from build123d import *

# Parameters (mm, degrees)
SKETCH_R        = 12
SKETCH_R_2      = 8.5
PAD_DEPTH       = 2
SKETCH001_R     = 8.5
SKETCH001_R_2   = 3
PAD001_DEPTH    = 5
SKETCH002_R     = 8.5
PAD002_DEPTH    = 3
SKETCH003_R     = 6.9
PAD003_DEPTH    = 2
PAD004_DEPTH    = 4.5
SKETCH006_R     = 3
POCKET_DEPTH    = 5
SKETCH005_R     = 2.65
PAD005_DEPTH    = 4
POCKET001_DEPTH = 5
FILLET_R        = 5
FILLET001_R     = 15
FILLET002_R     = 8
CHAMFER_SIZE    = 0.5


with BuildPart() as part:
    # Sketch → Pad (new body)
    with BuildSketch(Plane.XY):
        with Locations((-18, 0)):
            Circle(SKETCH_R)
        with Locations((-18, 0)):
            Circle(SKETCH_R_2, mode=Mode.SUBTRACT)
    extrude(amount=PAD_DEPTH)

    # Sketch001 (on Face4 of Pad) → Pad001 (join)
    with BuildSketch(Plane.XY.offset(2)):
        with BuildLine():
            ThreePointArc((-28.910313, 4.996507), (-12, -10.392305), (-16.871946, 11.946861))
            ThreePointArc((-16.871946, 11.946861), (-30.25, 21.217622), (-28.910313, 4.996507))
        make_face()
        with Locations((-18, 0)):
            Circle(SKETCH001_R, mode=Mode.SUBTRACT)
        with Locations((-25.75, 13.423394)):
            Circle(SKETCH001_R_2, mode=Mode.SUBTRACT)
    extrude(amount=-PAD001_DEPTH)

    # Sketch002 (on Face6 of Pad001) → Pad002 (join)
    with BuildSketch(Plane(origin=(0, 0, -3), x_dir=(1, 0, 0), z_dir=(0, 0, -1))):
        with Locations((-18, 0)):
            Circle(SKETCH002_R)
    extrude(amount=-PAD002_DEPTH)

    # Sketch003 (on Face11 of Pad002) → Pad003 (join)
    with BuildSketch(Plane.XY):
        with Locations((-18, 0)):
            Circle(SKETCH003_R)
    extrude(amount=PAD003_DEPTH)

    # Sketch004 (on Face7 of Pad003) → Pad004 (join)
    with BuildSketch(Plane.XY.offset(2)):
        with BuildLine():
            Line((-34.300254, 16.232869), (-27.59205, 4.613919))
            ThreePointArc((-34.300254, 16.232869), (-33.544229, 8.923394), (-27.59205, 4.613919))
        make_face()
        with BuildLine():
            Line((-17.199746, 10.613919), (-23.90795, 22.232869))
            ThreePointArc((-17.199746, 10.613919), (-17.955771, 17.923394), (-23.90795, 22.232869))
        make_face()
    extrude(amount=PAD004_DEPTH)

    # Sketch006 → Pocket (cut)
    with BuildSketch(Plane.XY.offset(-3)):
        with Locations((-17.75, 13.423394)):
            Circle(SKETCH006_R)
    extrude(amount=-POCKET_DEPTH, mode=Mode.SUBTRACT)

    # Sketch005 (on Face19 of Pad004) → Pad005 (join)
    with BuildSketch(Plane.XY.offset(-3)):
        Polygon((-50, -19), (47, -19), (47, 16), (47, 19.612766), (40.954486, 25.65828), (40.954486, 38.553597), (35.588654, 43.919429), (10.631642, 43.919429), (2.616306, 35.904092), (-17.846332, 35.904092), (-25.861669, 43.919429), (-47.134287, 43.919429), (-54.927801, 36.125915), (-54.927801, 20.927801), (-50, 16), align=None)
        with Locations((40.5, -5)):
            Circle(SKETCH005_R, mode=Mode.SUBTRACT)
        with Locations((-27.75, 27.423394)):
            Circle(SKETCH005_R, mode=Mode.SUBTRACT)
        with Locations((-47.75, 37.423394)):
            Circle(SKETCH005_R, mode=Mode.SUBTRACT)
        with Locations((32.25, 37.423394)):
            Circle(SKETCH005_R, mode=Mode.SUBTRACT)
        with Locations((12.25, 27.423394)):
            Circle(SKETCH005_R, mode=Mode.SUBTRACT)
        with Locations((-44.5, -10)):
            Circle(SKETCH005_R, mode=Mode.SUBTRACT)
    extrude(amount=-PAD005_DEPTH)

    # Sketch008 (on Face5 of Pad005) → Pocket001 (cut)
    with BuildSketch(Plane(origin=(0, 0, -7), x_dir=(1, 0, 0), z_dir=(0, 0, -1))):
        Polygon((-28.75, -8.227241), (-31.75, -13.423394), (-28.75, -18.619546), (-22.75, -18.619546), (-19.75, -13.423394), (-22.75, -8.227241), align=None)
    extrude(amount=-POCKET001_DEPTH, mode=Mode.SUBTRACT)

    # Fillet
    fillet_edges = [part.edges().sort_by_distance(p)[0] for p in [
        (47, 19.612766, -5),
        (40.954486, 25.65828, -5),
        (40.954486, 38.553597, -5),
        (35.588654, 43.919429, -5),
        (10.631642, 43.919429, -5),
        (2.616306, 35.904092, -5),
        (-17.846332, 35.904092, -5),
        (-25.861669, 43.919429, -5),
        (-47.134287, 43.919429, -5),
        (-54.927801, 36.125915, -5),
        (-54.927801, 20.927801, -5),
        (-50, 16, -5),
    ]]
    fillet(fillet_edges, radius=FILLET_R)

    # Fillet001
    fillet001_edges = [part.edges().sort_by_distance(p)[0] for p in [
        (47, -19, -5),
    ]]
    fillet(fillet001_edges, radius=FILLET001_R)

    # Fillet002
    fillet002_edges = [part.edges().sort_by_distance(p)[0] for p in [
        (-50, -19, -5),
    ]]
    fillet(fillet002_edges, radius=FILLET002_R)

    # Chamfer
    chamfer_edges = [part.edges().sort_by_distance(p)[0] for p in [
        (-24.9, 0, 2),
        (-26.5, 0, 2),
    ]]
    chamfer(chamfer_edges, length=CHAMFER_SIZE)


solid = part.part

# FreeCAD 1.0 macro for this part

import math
import FreeCAD as App
import Part
import Sketcher
Q = App.Units.Quantity


def edges_at(feature, points):
    """Names of the edges that pass closest to the given points."""
    edges = feature.Shape.Edges
    near = lambda p: min(range(len(edges)), key=lambda i: edges[i].distToShape(Part.Vertex(*p))[0])
    return sorted({f"Edge{near(p) + 1}" for p in points})


def add_polygon(sketch, points):
    """Adds a closed chain of lines whose ends are joined by coincident constraints."""
    first, n = sketch.GeometryCount, len(points)
    for a, b in zip(points, points[1:] + points[:1]):
        sketch.addGeometry(Part.LineSegment(App.Vector(*a, 0), App.Vector(*b, 0)), False)
    for i in range(n):
        sketch.addConstraint(Sketcher.Constraint("Coincident", first + i, 2, first + (i + 1) % n, 1))

doc = App.newDocument("Part")
params = doc.addObject("Spreadsheet::Sheet", "Params")
for row, (alias, value) in enumerate([
    ("sketch1_diameter", "24 mm"),
    ("sketch1_diameter2", "17 mm"),
    ("pad1_length", "2 mm"),
    ("sketch2_diameter", "17 mm"),
    ("sketch2_diameter2", "6 mm"),
    ("sketch2_radius", "12 mm"),
    ("sketch2_radius2", "9 mm"),
    ("pad2_length", "5 mm"),
    ("sketch3_diameter", "17 mm"),
    ("pad3_length", "3 mm"),
    ("sketch4_diameter", "13.8 mm"),
    ("pad4_length", "2 mm"),
    ("sketch5_radius", "8.999999 mm"),
    ("pad5_length", "4.5 mm"),
    ("sketch6_diameter", "6 mm"),
    ("pocket1_length", "5 mm"),
    ("sketch7_diameter", "5.3 mm"),
    ("sketch7_width", "97 mm"),
    ("sketch7_height", "35 mm"),
    ("pad6_length", "4 mm"),
    ("sketch8_width", "6 mm"),
    ("sketch8_length", "6 mm"),
    ("pocket2_length", "5 mm"),
    ("fillet_radius", "5 mm"),
    ("fillet2_radius", "15 mm"),
    ("fillet3_radius", "8 mm"),
    ("chamfer_size", "0.5 mm"),
], start=1):
    params.set(f"A{row}", alias)
    params.set(f"B{row}", "=" + value)
    params.setAlias(f"B{row}", alias)

body = doc.addObject("PartDesign::Body", "Body")

# Sketch on XY plane
sketch1 = body.newObject("Sketcher::SketchObject", "Sketch")
sketch1.AttachmentSupport = (doc.getObject("XY_Plane"), [""])
sketch1.MapMode = "FlatFace"
sketch1.addGeometry([
    Part.Circle(App.Vector(-18, 0, 0), App.Vector(0, 0, 1), 12),
    Part.Circle(App.Vector(-18, 0, 0), App.Vector(0, 0, 1), 8),
], False)
sketch1.addConstraint([
    Sketcher.Constraint("Coincident", 1, 3, 0, 3),
    Sketcher.Constraint("PointOnObject", 0, 3, -1),
    Sketcher.Constraint("Diameter", 0, Q("24 mm")),
    Sketcher.Constraint("Diameter", 1, Q("17 mm")),
    Sketcher.Constraint("DistanceX", 0, 3, -1, 1, Q("18 mm")),
])
sketch1.setExpression("Constraints[2]", "Params.sketch1_diameter")
sketch1.setExpression("Constraints[3]", "Params.sketch1_diameter2")
pad1 = body.newObject("PartDesign::Pad", "Pad")
pad1.Profile = sketch1
pad1.setExpression("Length", "Params.pad1_length")

# Sketch on XY plane
sketch2 = body.newObject("Sketcher::SketchObject", "Sketch001")
sketch2.AttachmentSupport = (doc.getObject("XY_Plane"), [""])
sketch2.MapMode = "FlatFace"
sketch2.AttachmentOffset = App.Placement(App.Vector(0, 0, 2), App.Rotation())
sketch2.addGeometry([
    Part.ArcOfCircle(Part.Circle(App.Vector(-18, 0, 0), App.Vector(0, 0, 1), 12), math.radians(155), math.radians(445)),
    Part.ArcOfCircle(Part.Circle(App.Vector(-25.8, 13.4, 0), App.Vector(0, 0, 1), 9), math.radians(-9), math.radians(249)),
    Part.Circle(App.Vector(-18, 0, 0), App.Vector(0, 0, 1), 8.5),
    Part.Circle(App.Vector(-25.8, 13.4, 0), App.Vector(0, 0, 1), 3),
], False)
sketch2.addConstraint([
    Sketcher.Constraint("Coincident", 0, 1, 1, 2),
    Sketcher.Constraint("Coincident", 1, 1, 0, 2),
    Sketcher.Constraint("Coincident", 2, 3, 0, 3),
    Sketcher.Constraint("Coincident", 3, 3, 1, 3),
    Sketcher.Constraint("PointOnObject", 0, 3, -1),
    Sketcher.Constraint("Diameter", 2, Q("17 mm")),
    Sketcher.Constraint("Diameter", 3, Q("6 mm")),
    Sketcher.Constraint("Radius", 0, Q("12 mm")),
    Sketcher.Constraint("Radius", 1, Q("9 mm")),
    Sketcher.Constraint("DistanceX", 0, 3, -1, 1, Q("18.000001 mm")),
    Sketcher.Constraint("DistanceX", 1, 3, -1, 1, Q("25.75 mm")),
    Sketcher.Constraint("DistanceY", -1, 1, 1, 3, Q("13.423394 mm")),
])
sketch2.setExpression("Constraints[5]", "Params.sketch2_diameter")
sketch2.setExpression("Constraints[6]", "Params.sketch2_diameter2")
sketch2.setExpression("Constraints[7]", "Params.sketch2_radius")
sketch2.setExpression("Constraints[8]", "Params.sketch2_radius2")
pad2 = body.newObject("PartDesign::Pad", "Pad001")
pad2.Profile = sketch2
pad2.setExpression("Length", "Params.pad2_length")
pad2.Reversed = True

# Sketch on XY plane
sketch3 = body.newObject("Sketcher::SketchObject", "Sketch002")
sketch3.AttachmentSupport = (doc.getObject("XY_Plane"), [""])
sketch3.MapMode = "FlatFace"
sketch3.AttachmentOffset = App.Placement(App.Vector(0, 0, -3), App.Rotation())
sketch3.addGeometry(Part.Circle(App.Vector(-18, 0, 0), App.Vector(0, 0, 1), 8), False)
sketch3.addConstraint([
    Sketcher.Constraint("PointOnObject", 0, 3, -1),
    Sketcher.Constraint("Diameter", 0, Q("17 mm")),
    Sketcher.Constraint("DistanceX", 0, 3, -1, 1, Q("18 mm")),
])
sketch3.setExpression("Constraints[1]", "Params.sketch3_diameter")
pad3 = body.newObject("PartDesign::Pad", "Pad002")
pad3.Profile = sketch3
pad3.setExpression("Length", "Params.pad3_length")

# Sketch on XY plane
sketch4 = body.newObject("Sketcher::SketchObject", "Sketch003")
sketch4.AttachmentSupport = (doc.getObject("XY_Plane"), [""])
sketch4.MapMode = "FlatFace"
sketch4.addGeometry(Part.Circle(App.Vector(-18, 0, 0), App.Vector(0, 0, 1), 7), False)
sketch4.addConstraint([
    Sketcher.Constraint("PointOnObject", 0, 3, -1),
    Sketcher.Constraint("Diameter", 0, Q("13.8 mm")),
    Sketcher.Constraint("DistanceX", 0, 3, -1, 1, Q("18 mm")),
])
sketch4.setExpression("Constraints[1]", "Params.sketch4_diameter")
pad4 = body.newObject("PartDesign::Pad", "Pad003")
pad4.Profile = sketch4
pad4.setExpression("Length", "Params.pad4_length")

# Sketch on XY plane
sketch5 = body.newObject("Sketcher::SketchObject", "Sketch004")
sketch5.AttachmentSupport = (doc.getObject("XY_Plane"), [""])
sketch5.MapMode = "FlatFace"
sketch5.AttachmentOffset = App.Placement(App.Vector(0, 0, 2), App.Rotation())
sketch5.addGeometry([
    Part.LineSegment(App.Vector(-28, 5, 0), App.Vector(-34, 16, 0)),
    Part.ArcOfCircle(Part.Circle(App.Vector(-26, 13, 0), App.Vector(0, 0, 1), 9), math.radians(162), math.radians(258)),
    Part.LineSegment(App.Vector(-24, 22, 0), App.Vector(-17, 11, 0)),
    Part.ArcOfCircle(Part.Circle(App.Vector(-26, 13, 0), App.Vector(0, 0, 1), 9), math.radians(-18), math.radians(78)),
], False)
sketch5.addConstraint([
    Sketcher.Constraint("Coincident", 0, 1, 1, 2),
    Sketcher.Constraint("Coincident", 1, 1, 0, 2),
    Sketcher.Constraint("Coincident", 2, 1, 3, 2),
    Sketcher.Constraint("Coincident", 3, 1, 2, 2),
    Sketcher.Constraint("Coincident", 3, 3, 1, 3),
    Sketcher.Constraint("Equal", 1, 3),
    Sketcher.Constraint("Parallel", 0, 2),
    Sketcher.Constraint("Equal", 0, 2),
    Sketcher.Constraint("Radius", 1, Q("8.999999 mm")),
    Sketcher.Constraint("Angle", 0, Q("120 deg")),
    Sketcher.Constraint("DistanceY", 1, 1, 2, 1, Q("6 mm")),
    Sketcher.Constraint("DistanceX", 1, 3, -1, 1, Q("25.750001 mm")),
    Sketcher.Constraint("DistanceY", -1, 1, 0, 1, Q("4.613919 mm")),
])
sketch5.setExpression("Constraints[8]", "Params.sketch5_radius")
pad5 = body.newObject("PartDesign::Pad", "Pad004")
pad5.Profile = sketch5
pad5.setExpression("Length", "Params.pad5_length")

# Sketch on XY plane
sketch6 = body.newObject("Sketcher::SketchObject", "Sketch005")
sketch6.AttachmentSupport = (doc.getObject("XY_Plane"), [""])
sketch6.MapMode = "FlatFace"
sketch6.AttachmentOffset = App.Placement(App.Vector(0, 0, -3), App.Rotation())
sketch6.addGeometry(Part.Circle(App.Vector(-17.8, 13.4, 0), App.Vector(0, 0, 1), 3), False)
sketch6.addConstraint([
    Sketcher.Constraint("Diameter", 0, Q("6 mm")),
    Sketcher.Constraint("DistanceX", 0, 3, -1, 1, Q("17.75 mm")),
    Sketcher.Constraint("DistanceY", -1, 1, 0, 3, Q("13.423394 mm")),
])
sketch6.setExpression("Constraints[0]", "Params.sketch6_diameter")
pocket1 = body.newObject("PartDesign::Pocket", "Pocket")
pocket1.Profile = sketch6
pocket1.setExpression("Length", "Params.pocket1_length")

# Sketch on XY plane
sketch7 = body.newObject("Sketcher::SketchObject", "Sketch006")
sketch7.AttachmentSupport = (doc.getObject("XY_Plane"), [""])
sketch7.MapMode = "FlatFace"
sketch7.AttachmentOffset = App.Placement(App.Vector(0, 0, -3), App.Rotation())
add_polygon(sketch7, [(-50, -19), (47, -19), (47, 19.6), (41, 25.7), (41, 38.6), (35.6, 43.9), (10.6, 43.9), (2.6, 35.9), (-17.8, 35.9), (-25.9, 43.9), (-47.1, 43.9), (-54.9, 36.1), (-54.9, 20.9), (-50, 16)])  # lines 0-13
sketch7.addGeometry(Part.Circle(App.Vector(-44.5, -10, 0), App.Vector(0, 0, 1), 2.6), False)  # 14
sketch7.addGeometry(Part.Circle(App.Vector(40.5, -5, 0), App.Vector(0, 0, 1), 2.6), False)  # 15
sketch7.addGeometry(Part.Circle(App.Vector(-27.8, 27.4, 0), App.Vector(0, 0, 1), 2.6), False)  # 16
sketch7.addGeometry(Part.Circle(App.Vector(-47.8, 37.4, 0), App.Vector(0, 0, 1), 2.6), False)  # 17
sketch7.addGeometry(Part.Circle(App.Vector(12.2, 27.4, 0), App.Vector(0, 0, 1), 2.6), False)  # 18
sketch7.addGeometry(Part.Circle(App.Vector(32.2, 37.4, 0), App.Vector(0, 0, 1), 2.6), False)  # 19
sketch7.addConstraint([
    Sketcher.Constraint("Horizontal", 0),
    Sketcher.Constraint("Vertical", 1),
    Sketcher.Constraint("Vertical", 3),
    Sketcher.Constraint("Horizontal", 5),
    Sketcher.Constraint("Horizontal", 7),
    Sketcher.Constraint("Horizontal", 9),
    Sketcher.Constraint("Vertical", 11),
    Sketcher.Constraint("Vertical", 13),
    Sketcher.Constraint("Equal", 14, 15),
    Sketcher.Constraint("Equal", 15, 16),
    Sketcher.Constraint("Equal", 16, 17),
    Sketcher.Constraint("Equal", 17, 18),
    Sketcher.Constraint("Equal", 18, 19),
    Sketcher.Constraint("Parallel", 2, 4),
    Sketcher.Constraint("Perpendicular", 4, 6),
    Sketcher.Constraint("Perpendicular", 6, 8),
    Sketcher.Constraint("Perpendicular", 8, 10),
    Sketcher.Constraint("Perpendicular", 10, 12),
    Sketcher.Constraint("Horizontal", 16, 3, 18, 3),
    Sketcher.Constraint("Horizontal", 17, 3, 19, 3),
    Sketcher.Constraint("Horizontal", 5, 2, 8, 2),
    Sketcher.Constraint("Equal", 6, 8),
    Sketcher.Constraint("Diameter", 14, Q("5.3 mm")),
    Sketcher.Constraint("DistanceX", 0, 1, 0, 2, Q("97 mm")),
    Sketcher.Constraint("DistanceY", 13, 2, 13, 1, Q("35 mm")),
    Sketcher.Constraint("DistanceY", 14, 3, -1, 1, Q("10 mm")),
    Sketcher.Constraint("DistanceY", 15, 3, -1, 1, Q("5 mm")),
    Sketcher.Constraint("DistanceX", -1, 1, 0, 2, Q("47 mm")),
    Sketcher.Constraint("DistanceY", 0, 2, -1, 1, Q("19 mm")),
    Sketcher.Constraint("DistanceX", 14, 3, 15, 3, Q("85 mm")),
    Sketcher.Constraint("DistanceX", 17, 3, 16, 3, Q("20 mm")),
    Sketcher.Constraint("DistanceY", 16, 3, 17, 3, Q("10 mm")),
    Sketcher.Constraint("DistanceX", 16, 3, 18, 3, Q("40 mm")),
    Sketcher.Constraint("DistanceX", 18, 3, 19, 3, Q("20 mm")),
    Sketcher.Constraint("DistanceX", 14, 3, -1, 1, Q("44.5 mm")),
    Sketcher.Constraint("DistanceX", 16, 3, -1, 1, Q("27.75 mm")),
    Sketcher.Constraint("Distance", 8, Q("11.335398 mm")),
    Sketcher.Constraint("DistanceX", 5, 2, 5, 1, Q("24.957012 mm")),
    Sketcher.Constraint("DistanceX", 9, 2, 9, 1, Q("21.272618 mm")),
    Sketcher.Constraint("DistanceX", 10, 2, -1, 1, Q("54.927801 mm")),
    Sketcher.Constraint("DistanceX", 7, 2, 7, 1, Q("20.462638 mm")),
    Sketcher.Constraint("DistanceY", 1, 1, 1, 2, Q("38.612766 mm")),
    Sketcher.Constraint("DistanceY", 3, 1, 3, 2, Q("12.895317 mm")),
    Sketcher.Constraint("DistanceY", 11, 2, 11, 1, Q("15.198114 mm")),
    Sketcher.Constraint("DistanceY", -1, 1, 2, 2, Q("25.65828 mm")),
    Sketcher.Constraint("DistanceY", 1, 2, 19, 3, Q("17.810628 mm")),
])
sketch7.setExpression("Constraints[36]", "Params.sketch7_diameter")
sketch7.setExpression("Constraints[37]", "Params.sketch7_width")
sketch7.setExpression("Constraints[38]", "Params.sketch7_height")
pad6 = body.newObject("PartDesign::Pad", "Pad005")
pad6.Profile = sketch7
pad6.setExpression("Length", "Params.pad6_length")
pad6.Reversed = True

# Sketch on XY plane
sketch8 = body.newObject("Sketcher::SketchObject", "Sketch007")
sketch8.AttachmentSupport = (doc.getObject("XY_Plane"), [""])
sketch8.MapMode = "FlatFace"
sketch8.AttachmentOffset = App.Placement(App.Vector(0, 0, -7), App.Rotation())
add_polygon(sketch8, [(-29, 8), (-32, 13), (-29, 19), (-23, 19), (-20, 13), (-23, 8)])  # lines 0-5
sketch8.addConstraint([
    Sketcher.Constraint("Horizontal", 2),
    Sketcher.Constraint("Horizontal", 5),
    Sketcher.Constraint("Parallel", 0, 3),
    Sketcher.Constraint("Parallel", 1, 4),
    Sketcher.Constraint("Horizontal", 0, 2, 3, 2),
    Sketcher.Constraint("Vertical", 2, 2, 4, 2),
    Sketcher.Constraint("Vertical", 1, 2, 5, 2),
    Sketcher.Constraint("DistanceX", 2, 1, 2, 2, Q("6 mm")),
    Sketcher.Constraint("Angle", 0, Q("119.999997 deg")),
    Sketcher.Constraint("Distance", 0, Q("6 mm")),
    Sketcher.Constraint("DistanceX", 0, 2, -1, 1, Q("31.75 mm")),
    Sketcher.Constraint("DistanceY", -1, 1, 4, 2, Q("8.227241 mm")),
])
sketch8.setExpression("Constraints[13]", "Params.sketch8_width")
sketch8.setExpression("Constraints[15]", "Params.sketch8_length")
pocket2 = body.newObject("PartDesign::Pocket", "Pocket001")
pocket2.Profile = sketch8
pocket2.setExpression("Length", "Params.pocket2_length")
pocket2.Reversed = True
doc.recompute()

fillet = body.newObject("PartDesign::Fillet", "Fillet")
fillet.Base = (pocket2, edges_at(pocket2, [
    (47, 19.613, -5),
    (40.954, 25.658, -5),
    (40.954, 38.554, -5),
    (35.589, 43.919, -5),
    (10.632, 43.919, -5),
    (2.616, 35.904, -5),
    (-17.846, 35.904, -5),
    (-25.862, 43.919, -5),
    (-47.134, 43.919, -5),
    (-54.928, 36.126, -5),
    (-54.928, 20.928, -5),
    (-50, 16, -5),
]))
fillet.setExpression("Radius", "Params.fillet_radius")
doc.recompute()

fillet2 = body.newObject("PartDesign::Fillet", "Fillet001")
fillet2.Base = (fillet, edges_at(fillet, [(47, -19, -5)]))
fillet2.setExpression("Radius", "Params.fillet2_radius")
doc.recompute()

fillet3 = body.newObject("PartDesign::Fillet", "Fillet002")
fillet3.Base = (fillet2, edges_at(fillet2, [(-50, -19, -5)]))
fillet3.setExpression("Radius", "Params.fillet3_radius")
doc.recompute()

chamfer = body.newObject("PartDesign::Chamfer", "Chamfer")
chamfer.Base = (fillet3, edges_at(fillet3, [(-24.9, 0, 2), (-26.5, 0, 2)]))
chamfer.setExpression("Size", "Params.chamfer_size")

doc.recompute()
